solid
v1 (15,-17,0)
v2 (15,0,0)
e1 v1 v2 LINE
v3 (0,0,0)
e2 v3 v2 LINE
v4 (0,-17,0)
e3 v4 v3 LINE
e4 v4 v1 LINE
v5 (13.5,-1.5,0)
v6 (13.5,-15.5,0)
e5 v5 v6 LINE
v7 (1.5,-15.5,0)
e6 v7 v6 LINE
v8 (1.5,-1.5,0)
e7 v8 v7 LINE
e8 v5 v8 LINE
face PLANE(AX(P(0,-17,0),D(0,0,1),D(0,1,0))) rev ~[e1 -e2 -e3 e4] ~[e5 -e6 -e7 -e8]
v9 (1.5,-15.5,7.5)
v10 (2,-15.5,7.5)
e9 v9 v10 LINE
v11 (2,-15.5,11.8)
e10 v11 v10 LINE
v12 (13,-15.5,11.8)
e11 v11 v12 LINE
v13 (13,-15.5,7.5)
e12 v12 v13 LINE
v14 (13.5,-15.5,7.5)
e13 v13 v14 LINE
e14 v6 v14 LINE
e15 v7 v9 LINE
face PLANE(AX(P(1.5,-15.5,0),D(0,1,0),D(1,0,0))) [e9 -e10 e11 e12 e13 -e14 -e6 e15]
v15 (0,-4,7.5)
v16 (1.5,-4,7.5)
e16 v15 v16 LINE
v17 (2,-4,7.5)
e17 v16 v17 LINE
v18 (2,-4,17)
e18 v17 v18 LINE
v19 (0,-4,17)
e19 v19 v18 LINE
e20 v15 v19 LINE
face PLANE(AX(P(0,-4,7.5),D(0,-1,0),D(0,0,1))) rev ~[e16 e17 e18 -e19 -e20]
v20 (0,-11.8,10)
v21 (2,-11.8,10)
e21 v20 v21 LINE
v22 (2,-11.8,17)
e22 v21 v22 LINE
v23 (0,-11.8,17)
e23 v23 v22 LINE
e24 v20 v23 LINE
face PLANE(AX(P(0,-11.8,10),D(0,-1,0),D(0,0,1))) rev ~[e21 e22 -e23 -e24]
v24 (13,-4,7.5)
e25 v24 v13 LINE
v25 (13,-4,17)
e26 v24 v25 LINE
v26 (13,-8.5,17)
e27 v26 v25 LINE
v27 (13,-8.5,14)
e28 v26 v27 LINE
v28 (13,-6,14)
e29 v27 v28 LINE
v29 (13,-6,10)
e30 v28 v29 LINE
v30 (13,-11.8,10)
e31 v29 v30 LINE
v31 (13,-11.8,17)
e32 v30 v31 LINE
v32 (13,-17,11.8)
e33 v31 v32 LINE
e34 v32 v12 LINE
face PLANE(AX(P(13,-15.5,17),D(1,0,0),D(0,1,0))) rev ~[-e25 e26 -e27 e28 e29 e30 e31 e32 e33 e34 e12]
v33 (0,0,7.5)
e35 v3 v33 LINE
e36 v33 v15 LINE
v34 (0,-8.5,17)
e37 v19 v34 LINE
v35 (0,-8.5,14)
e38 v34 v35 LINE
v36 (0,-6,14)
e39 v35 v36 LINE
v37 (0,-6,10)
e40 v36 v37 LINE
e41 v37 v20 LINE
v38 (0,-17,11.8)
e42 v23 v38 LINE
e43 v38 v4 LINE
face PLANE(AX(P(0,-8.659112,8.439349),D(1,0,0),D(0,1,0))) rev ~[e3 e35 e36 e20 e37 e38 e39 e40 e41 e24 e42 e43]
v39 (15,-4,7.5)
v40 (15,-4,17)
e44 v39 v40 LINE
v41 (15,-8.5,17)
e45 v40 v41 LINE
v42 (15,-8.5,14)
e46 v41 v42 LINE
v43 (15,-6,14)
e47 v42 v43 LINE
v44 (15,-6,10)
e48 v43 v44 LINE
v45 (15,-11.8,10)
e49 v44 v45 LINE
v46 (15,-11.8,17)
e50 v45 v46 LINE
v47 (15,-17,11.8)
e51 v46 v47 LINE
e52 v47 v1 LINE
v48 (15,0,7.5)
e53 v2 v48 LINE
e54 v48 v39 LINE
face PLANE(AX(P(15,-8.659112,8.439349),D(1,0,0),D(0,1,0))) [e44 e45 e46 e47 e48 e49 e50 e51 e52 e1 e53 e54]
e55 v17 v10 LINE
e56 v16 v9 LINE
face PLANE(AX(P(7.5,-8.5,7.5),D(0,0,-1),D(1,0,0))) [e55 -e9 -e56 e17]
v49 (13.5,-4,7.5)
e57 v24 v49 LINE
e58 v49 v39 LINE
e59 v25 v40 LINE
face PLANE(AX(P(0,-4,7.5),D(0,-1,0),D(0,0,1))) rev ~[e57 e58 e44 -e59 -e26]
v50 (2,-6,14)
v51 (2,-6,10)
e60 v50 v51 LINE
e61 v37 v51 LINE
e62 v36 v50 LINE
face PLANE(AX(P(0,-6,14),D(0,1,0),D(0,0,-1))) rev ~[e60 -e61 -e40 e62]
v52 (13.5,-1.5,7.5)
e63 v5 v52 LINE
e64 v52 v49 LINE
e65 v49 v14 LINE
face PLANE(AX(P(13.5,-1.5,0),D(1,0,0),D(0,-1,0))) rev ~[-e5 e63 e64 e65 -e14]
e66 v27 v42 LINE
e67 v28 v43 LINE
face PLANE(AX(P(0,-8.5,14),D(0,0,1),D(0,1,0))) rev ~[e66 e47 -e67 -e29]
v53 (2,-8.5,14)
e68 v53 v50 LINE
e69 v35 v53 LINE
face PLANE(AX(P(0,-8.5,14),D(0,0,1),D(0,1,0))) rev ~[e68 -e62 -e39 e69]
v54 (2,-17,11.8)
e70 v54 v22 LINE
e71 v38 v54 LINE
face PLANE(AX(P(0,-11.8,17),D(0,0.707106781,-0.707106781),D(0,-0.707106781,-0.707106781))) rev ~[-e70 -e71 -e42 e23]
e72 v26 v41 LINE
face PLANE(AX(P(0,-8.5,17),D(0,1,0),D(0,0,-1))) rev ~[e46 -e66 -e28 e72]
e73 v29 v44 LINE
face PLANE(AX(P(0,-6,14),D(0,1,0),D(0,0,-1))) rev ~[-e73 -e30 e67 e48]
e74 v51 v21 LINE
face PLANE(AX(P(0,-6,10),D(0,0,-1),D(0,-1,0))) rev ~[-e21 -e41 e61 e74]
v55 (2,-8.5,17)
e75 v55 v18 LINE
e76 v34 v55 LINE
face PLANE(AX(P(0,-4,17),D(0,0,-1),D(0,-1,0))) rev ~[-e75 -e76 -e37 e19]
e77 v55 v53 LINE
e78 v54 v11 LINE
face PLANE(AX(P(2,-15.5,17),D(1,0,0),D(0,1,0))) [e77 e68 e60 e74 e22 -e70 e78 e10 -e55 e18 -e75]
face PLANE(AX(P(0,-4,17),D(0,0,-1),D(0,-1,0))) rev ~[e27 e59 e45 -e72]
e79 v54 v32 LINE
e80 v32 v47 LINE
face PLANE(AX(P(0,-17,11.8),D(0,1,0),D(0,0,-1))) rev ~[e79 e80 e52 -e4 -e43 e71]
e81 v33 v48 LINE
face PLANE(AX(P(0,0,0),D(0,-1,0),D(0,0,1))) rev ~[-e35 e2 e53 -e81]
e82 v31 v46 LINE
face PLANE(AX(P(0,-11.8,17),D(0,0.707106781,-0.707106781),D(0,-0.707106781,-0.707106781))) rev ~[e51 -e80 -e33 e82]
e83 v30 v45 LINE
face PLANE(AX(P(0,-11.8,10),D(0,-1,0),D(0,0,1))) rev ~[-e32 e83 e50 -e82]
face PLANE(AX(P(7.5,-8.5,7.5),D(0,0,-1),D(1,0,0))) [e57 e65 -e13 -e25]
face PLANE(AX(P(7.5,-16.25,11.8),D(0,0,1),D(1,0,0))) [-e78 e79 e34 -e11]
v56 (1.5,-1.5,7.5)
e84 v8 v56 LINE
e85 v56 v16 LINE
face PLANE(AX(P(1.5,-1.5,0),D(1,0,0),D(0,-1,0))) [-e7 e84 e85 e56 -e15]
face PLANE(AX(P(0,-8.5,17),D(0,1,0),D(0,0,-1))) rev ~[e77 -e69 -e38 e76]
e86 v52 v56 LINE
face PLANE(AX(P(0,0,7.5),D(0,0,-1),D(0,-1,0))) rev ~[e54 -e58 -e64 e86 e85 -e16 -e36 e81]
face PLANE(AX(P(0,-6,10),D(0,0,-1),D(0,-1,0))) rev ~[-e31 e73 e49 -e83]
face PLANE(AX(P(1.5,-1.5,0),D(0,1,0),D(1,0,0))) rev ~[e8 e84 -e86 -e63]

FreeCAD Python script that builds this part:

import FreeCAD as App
import Part
import Sketcher

V = App.Vector
Q = App.Units.Quantity


def add_polygon(sketch, points):
    """Adds a closed chain of lines whose ends are joined by coincident constraints."""
    first, n = sketch.GeometryCount, len(points)
    for a, b in zip(points, points[1:] + points[:1]):
        sketch.addGeometry(Part.LineSegment(App.Vector(*a, 0), App.Vector(*b, 0)), False)
    for i in range(n):
        sketch.addConstraint(Sketcher.Constraint("Coincident", first + i, 2, first + (i + 1) % n, 1))

doc = App.newDocument("Part")
body = doc.addObject("PartDesign::Body", "Body")

sketch1 = body.newObject("Sketcher::SketchObject", "Sketch")
sketch1.AttachmentSupport = (doc.getObject("YZ_Plane"), [""])
sketch1.MapMode = "FlatFace"
add_polygon(sketch1, [(-17, 0), (0, 0), (0, 7.5), (-4, 7.5), (-4, 17), (-8.5, 17), (-8.5, 14), (-6, 14), (-6, 10), (-11.8, 10), (-11.8, 17), (-17, 11.8)])
sketch1.addConstraint([
    Sketcher.Constraint("Horizontal", 0),
    Sketcher.Constraint("Vertical", 1),
    Sketcher.Constraint("Horizontal", 2),
    Sketcher.Constraint("Vertical", 3),
    Sketcher.Constraint("Horizontal", 4),
    Sketcher.Constraint("Vertical", 5),
    Sketcher.Constraint("Horizontal", 6),
    Sketcher.Constraint("Vertical", 7),
    Sketcher.Constraint("Horizontal", 8),
    Sketcher.Constraint("Vertical", 9),
    Sketcher.Constraint("Vertical", 11),
    Sketcher.Constraint("Coincident", 0, 2, -1, 1),
    Sketcher.Constraint("Horizontal", 4, 2, 9, 2),
    Sketcher.Constraint("Equal", 2, 7),
    Sketcher.Constraint("DistanceX", 0, 1, 0, 2, Q("17 mm")),
    Sketcher.Constraint("DistanceX", 2, 2, 2, 1, Q("4 mm")),
    Sketcher.Constraint("DistanceY", 5, 2, 5, 1, Q("3 mm")),
    Sketcher.Constraint("Angle", 10, Q("-135 deg")),
    Sketcher.Constraint("DistanceX", 4, 2, 4, 1, Q("4.5 mm")),
    Sketcher.Constraint("DistanceX", 6, 1, 6, 2, Q("2.5 mm")),
    Sketcher.Constraint("DistanceX", 8, 2, 8, 1, Q("5.8 mm")),
    Sketcher.Constraint("DistanceY", 1, 1, 1, 2, Q("7.5 mm")),
    Sketcher.Constraint("DistanceY", 3, 1, 3, 2, Q("9.5 mm")),
])
pad1 = body.newObject("PartDesign::Pad", "Pad")
pad1.Profile = sketch1
pad1.Length = 15

sketch2 = body.newObject("Sketcher::SketchObject", "Sketch001")
sketch2.AttachmentSupport = (doc.getObject("XY_Plane"), [""])
sketch2.MapMode = "FlatFace"
add_polygon(sketch2, [(1.5, -15.5), (1.5, -1.5), (13.5, -1.5), (13.5, -15.5)])
sketch2.addConstraint([
    Sketcher.Constraint("Vertical", 0),
    Sketcher.Constraint("Horizontal", 1),
    Sketcher.Constraint("Vertical", 2),
    Sketcher.Constraint("Horizontal", 3),
    Sketcher.Constraint("DistanceX", 1, 1, 1, 2, Q("12 mm")),
    Sketcher.Constraint("DistanceY", 0, 1, 0, 2, Q("14 mm")),
    Sketcher.Constraint("DistanceX", -1, 1, 0, 2, Q("1.5 mm")),
    Sketcher.Constraint("DistanceY", 0, 2, -1, 1, Q("1.5 mm")),
])
pocket1 = body.newObject("PartDesign::Pocket", "Pocket")
pocket1.Profile = sketch2
pocket1.Length = 7.5
pocket1.Reversed = True

sketch3 = body.newObject("Sketcher::SketchObject", "Sketch002")
sketch3.AttachmentSupport = (doc.getObject("XY_Plane"), [""])
sketch3.MapMode = "FlatFace"
sketch3.AttachmentOffset = App.Placement(V(0, 0, 17), App.Rotation())
add_polygon(sketch3, [(2, -1.5), (2, -15.5), (13, -15.5), (13, -1.5)])
sketch3.addConstraint([
    Sketcher.Constraint("Vertical", 0),
    Sketcher.Constraint("Horizontal", 1),
    Sketcher.Constraint("Vertical", 2),
    Sketcher.Constraint("Horizontal", 3),
    Sketcher.Constraint("DistanceX", 1, 1, 1, 2, Q("11 mm")),
    Sketcher.Constraint("DistanceY", 0, 2, 0, 1, Q("14 mm")),
    Sketcher.Constraint("DistanceX", -1, 1, 0, 2, Q("2 mm")),
    Sketcher.Constraint("DistanceY", 0, 2, -1, 1, Q("15.5 mm")),
])
pocket2 = body.newObject("PartDesign::Pocket", "Pocket001")
pocket2.Profile = sketch3
pocket2.Length = 17

sketch4 = body.newObject("Sketcher::SketchObject", "Sketch003")
sketch4.AttachmentSupport = (doc.getObject("XY_Plane"), [""])
sketch4.MapMode = "FlatFace"
sketch4.AttachmentOffset = App.Placement(V(0, 0, 17), App.Rotation())
add_polygon(sketch4, [(2, -15.5), (2, -17), (13, -17), (13, -15.5)])
sketch4.addConstraint([
    Sketcher.Constraint("Vertical", 0),
    Sketcher.Constraint("Horizontal", 1),
    Sketcher.Constraint("Vertical", 2),
    Sketcher.Constraint("Horizontal", 3),
    Sketcher.Constraint("DistanceX", 1, 1, 1, 2, Q("11 mm")),
    Sketcher.Constraint("DistanceY", 0, 2, 0, 1, Q("1.5 mm")),
    Sketcher.Constraint("DistanceX", -1, 1, 0, 2, Q("2 mm")),
    Sketcher.Constraint("DistanceY", 0, 2, -1, 1, Q("17 mm")),
])
pocket3 = body.newObject("PartDesign::Pocket", "Pocket002")
pocket3.Profile = sketch4
pocket3.Length = 5.2

doc.recompute()
